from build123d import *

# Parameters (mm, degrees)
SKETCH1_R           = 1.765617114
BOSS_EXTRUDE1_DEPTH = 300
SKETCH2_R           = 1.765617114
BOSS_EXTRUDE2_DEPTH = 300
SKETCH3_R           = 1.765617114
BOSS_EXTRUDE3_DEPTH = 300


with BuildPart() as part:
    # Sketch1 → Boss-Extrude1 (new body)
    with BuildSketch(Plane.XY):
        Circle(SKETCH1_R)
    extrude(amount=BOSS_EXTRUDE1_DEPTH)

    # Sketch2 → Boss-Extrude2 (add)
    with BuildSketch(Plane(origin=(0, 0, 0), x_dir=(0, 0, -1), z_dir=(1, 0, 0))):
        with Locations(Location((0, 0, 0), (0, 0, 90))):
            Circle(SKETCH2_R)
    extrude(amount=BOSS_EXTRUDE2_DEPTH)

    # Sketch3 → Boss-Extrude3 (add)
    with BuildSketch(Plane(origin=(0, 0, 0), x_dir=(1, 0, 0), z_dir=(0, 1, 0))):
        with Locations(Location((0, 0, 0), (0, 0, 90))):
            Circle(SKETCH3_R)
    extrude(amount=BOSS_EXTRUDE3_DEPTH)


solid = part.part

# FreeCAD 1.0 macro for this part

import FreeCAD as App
import Part
import Sketcher

V = App.Vector

doc = App.newDocument("Part")
body = doc.addObject("PartDesign::Body", "Body")

# Sketch on XY plane
sketch1 = body.newObject("Sketcher::SketchObject", "Sketch")
sketch1.AttachmentSupport = (doc.getObject("XY_Plane"), [""])
sketch1.MapMode = "FlatFace"
sketch1.addGeometry(Part.Circle(V(0, 0, 0), V(0, 0, 1), 1.765617), False)
sketch1.addConstraint(Sketcher.Constraint("Coincident", 0, 3, -1, 1))
sketch1.addConstraint(Sketcher.Constraint("Diameter", 0, 3.531234))
pad1 = body.newObject("PartDesign::Pad", "Pad")
pad1.Profile = sketch1
pad1.Length = 300

# Sketch on YZ plane
sketch2 = body.newObject("Sketcher::SketchObject", "Sketch001")
sketch2.AttachmentSupport = (doc.getObject("YZ_Plane"), [""])
sketch2.MapMode = "FlatFace"
sketch2.addGeometry(Part.Circle(V(0, 0, 0), V(0, 0, 1), 1.765617), False)
sketch2.addConstraint(Sketcher.Constraint("Coincident", 0, 3, -1, 1))
sketch2.addConstraint(Sketcher.Constraint("Diameter", 0, 3.531234))
pad2 = body.newObject("PartDesign::Pad", "Pad001")
pad2.Profile = sketch2
pad2.Length = 300

# Sketch on XZ plane
sketch3 = body.newObject("Sketcher::SketchObject", "Sketch002")
sketch3.AttachmentSupport = (doc.getObject("XZ_Plane"), [""])
sketch3.MapMode = "FlatFace"
sketch3.addGeometry(Part.Circle(V(0, 0, 0), V(0, 0, 1), 1.765617), False)
sketch3.addConstraint(Sketcher.Constraint("Coincident", 0, 3, -1, 1))
sketch3.addConstraint(Sketcher.Constraint("Diameter", 0, 3.531234))
pad3 = body.newObject("PartDesign::Pad", "Pad002")
pad3.Profile = sketch3
pad3.Length = 300
pad3.Reversed = True

doc.recompute()
